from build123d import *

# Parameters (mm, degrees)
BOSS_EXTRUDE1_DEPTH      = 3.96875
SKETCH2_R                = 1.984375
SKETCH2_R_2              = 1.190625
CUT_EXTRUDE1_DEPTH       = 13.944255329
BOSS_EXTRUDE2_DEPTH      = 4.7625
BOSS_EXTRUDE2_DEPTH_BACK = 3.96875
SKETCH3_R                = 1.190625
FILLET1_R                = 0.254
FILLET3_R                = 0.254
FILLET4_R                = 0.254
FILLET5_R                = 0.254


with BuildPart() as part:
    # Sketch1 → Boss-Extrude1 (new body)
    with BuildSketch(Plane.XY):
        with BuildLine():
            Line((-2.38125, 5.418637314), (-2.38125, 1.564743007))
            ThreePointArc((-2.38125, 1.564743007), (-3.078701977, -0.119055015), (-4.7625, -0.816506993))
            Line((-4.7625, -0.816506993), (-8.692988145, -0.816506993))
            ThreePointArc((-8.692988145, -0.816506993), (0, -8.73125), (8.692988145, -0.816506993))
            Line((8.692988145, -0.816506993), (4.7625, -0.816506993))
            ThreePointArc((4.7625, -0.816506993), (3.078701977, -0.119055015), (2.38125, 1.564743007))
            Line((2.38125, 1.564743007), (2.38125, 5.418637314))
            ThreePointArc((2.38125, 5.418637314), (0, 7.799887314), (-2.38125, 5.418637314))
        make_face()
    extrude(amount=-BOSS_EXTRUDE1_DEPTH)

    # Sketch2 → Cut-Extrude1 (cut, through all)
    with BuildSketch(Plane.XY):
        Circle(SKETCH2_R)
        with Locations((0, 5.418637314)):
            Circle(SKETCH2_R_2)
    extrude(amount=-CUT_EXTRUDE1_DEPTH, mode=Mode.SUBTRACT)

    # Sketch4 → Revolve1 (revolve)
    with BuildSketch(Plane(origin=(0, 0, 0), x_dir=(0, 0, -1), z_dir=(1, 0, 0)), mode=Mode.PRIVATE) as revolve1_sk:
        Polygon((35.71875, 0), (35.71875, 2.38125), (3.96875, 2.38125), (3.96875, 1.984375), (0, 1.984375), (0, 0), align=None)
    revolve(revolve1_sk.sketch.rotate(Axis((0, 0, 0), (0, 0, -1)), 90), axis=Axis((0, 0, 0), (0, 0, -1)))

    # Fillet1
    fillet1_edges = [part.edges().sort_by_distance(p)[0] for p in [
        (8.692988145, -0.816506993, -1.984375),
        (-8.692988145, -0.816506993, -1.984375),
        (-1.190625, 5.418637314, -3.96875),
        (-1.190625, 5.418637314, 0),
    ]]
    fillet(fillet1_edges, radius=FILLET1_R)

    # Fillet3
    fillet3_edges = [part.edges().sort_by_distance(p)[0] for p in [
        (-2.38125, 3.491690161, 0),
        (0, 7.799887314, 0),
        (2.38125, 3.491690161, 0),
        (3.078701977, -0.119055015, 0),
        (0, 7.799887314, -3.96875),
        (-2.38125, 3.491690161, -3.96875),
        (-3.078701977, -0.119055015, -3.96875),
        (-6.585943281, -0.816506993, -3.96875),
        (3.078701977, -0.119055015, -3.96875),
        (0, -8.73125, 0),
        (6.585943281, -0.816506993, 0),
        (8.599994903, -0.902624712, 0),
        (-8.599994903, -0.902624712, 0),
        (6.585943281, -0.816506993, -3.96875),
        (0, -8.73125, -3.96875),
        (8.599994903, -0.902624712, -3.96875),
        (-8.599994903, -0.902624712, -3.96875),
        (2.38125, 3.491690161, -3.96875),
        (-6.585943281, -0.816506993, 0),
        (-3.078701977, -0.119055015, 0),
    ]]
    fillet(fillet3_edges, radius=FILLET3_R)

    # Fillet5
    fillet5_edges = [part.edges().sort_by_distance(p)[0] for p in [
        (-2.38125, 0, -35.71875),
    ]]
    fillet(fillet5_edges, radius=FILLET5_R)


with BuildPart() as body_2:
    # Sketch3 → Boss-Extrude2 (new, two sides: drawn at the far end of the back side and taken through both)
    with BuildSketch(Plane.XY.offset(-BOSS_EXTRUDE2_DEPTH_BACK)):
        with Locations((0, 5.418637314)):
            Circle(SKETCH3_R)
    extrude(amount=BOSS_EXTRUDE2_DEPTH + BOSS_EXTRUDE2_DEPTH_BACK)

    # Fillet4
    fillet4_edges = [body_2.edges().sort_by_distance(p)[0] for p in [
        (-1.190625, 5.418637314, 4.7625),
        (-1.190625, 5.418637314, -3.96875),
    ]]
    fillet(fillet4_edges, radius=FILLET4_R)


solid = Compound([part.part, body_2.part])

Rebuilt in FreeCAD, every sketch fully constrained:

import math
import FreeCAD as App
import Part
import Sketcher
Q = App.Units.Quantity


def edges_at(feature, points):
    """Names of the edges that pass closest to the given points."""
    edges = feature.Shape.Edges
    near = lambda p: min(range(len(edges)), key=lambda i: edges[i].distToShape(Part.Vertex(*p))[0])
    return sorted({f"Edge{near(p) + 1}" for p in points})

doc = App.newDocument("Part")
params = doc.addObject("Spreadsheet::Sheet", "Params")
for row, (alias, value) in enumerate([
    ("sketch1_radius", "0.09375 in"),
    ("sketch1_radius2", "0.34375 in"),
    ("pad1_length", "0.15625 in"),
    ("sketch2_diameter", "0.15625 in"),
    ("sketch2_diameter2", "0.09375 in"),
    ("sketch3_height", "1.25 in"),
    ("sketch3_width", "0.09375 in"),
    ("sketch3_width2", "0.015625 in"),
    ("sketch3_height2", "0.15625 in"),
    ("revolution_angle", "360 deg"),
    ("fillet_radius", "0.01 in"),
    ("fillet2_radius", "0.01 in"),
    ("fillet3_radius", "0.01 in"),
    ("sketch4_diameter", "0.09375 in"),
    ("pad2_length", "0.1875 in"),
    ("pad2_length2", "0.15625 in"),
    ("fillet4_radius", "0.01 in"),
], start=1):
    params.set(f"A{row}", alias)
    params.set(f"B{row}", "=" + value)
    params.setAlias(f"B{row}", alias)

body = doc.addObject("PartDesign::Body", "Body")

# Sketch on XY plane
sketch1 = body.newObject("Sketcher::SketchObject", "Sketch")
sketch1.AttachmentSupport = (doc.getObject("XY_Plane"), [""])
sketch1.MapMode = "FlatFace"
sketch1.addGeometry(Part.LineSegment(App.Vector(-2.4, 5.4, 0), App.Vector(-2.4, 1.6, 0)), False)
sketch1.addGeometry(Part.ArcOfCircle(Part.Circle(App.Vector(-4.8, 1.6, 0), App.Vector(0, 0, 1), 2.4), math.radians(-90), math.radians(0)), False)
sketch1.addGeometry(Part.LineSegment(App.Vector(-4.8, -0.8, 0), App.Vector(-8.7, -0.8, 0)), False)
sketch1.addGeometry(Part.ArcOfCircle(Part.Circle(App.Vector(0, 0, 0), App.Vector(0, 0, 1), 8.7), math.radians(-175), math.radians(-5)), False)
sketch1.addGeometry(Part.LineSegment(App.Vector(8.7, -0.8, 0), App.Vector(4.8, -0.8, 0)), False)
sketch1.addGeometry(Part.ArcOfCircle(Part.Circle(App.Vector(4.8, 1.6, 0), App.Vector(0, 0, 1), 2.4), math.radians(-180), math.radians(-90)), False)
sketch1.addGeometry(Part.LineSegment(App.Vector(2.4, 1.6, 0), App.Vector(2.4, 5.4, 0)), False)
sketch1.addGeometry(Part.ArcOfCircle(Part.Circle(App.Vector(0, 5.4, 0), App.Vector(0, 0, 1), 2.4), math.radians(0), math.radians(180)), False)
sketch1.addConstraint(Sketcher.Constraint("Tangent", 0, 2, 1, 2))
sketch1.addConstraint(Sketcher.Constraint("Tangent", 1, 1, 2, 1))
sketch1.addConstraint(Sketcher.Constraint("Coincident", 2, 2, 3, 1))
sketch1.addConstraint(Sketcher.Constraint("Coincident", 3, 2, 4, 1))
sketch1.addConstraint(Sketcher.Constraint("Tangent", 4, 2, 5, 2))
sketch1.addConstraint(Sketcher.Constraint("Tangent", 5, 1, 6, 1))
sketch1.addConstraint(Sketcher.Constraint("Tangent", 6, 2, 7, 1))
sketch1.addConstraint(Sketcher.Constraint("Tangent", 7, 2, 0, 1))
sketch1.addConstraint(Sketcher.Constraint("Vertical", 0))
sketch1.addConstraint(Sketcher.Constraint("Horizontal", 2))
sketch1.addConstraint(Sketcher.Constraint("Horizontal", 4))
sketch1.addConstraint(Sketcher.Constraint("Vertical", 6))
sketch1.addConstraint(Sketcher.Constraint("Coincident", 3, 3, -1, 1))
sketch1.addConstraint(Sketcher.Constraint("Equal", 1, 5))
sketch1.addConstraint(Sketcher.Constraint("Equal", 5, 7))
sketch1.addConstraint(Sketcher.Constraint("Symmetric", 1, 3, 5, 3, -2))
sketch1.addConstraint(Sketcher.Constraint("Radius", 1, Q("0.09375 in")))
sketch1.addConstraint(Sketcher.Constraint("Radius", 3, Q("0.34375 in")))
sketch1.addConstraint(Sketcher.Constraint("DistanceX", 2, 2, 2, 1, Q("3.930488 mm")))
sketch1.addConstraint(Sketcher.Constraint("DistanceY", 0, 2, 0, 1, Q("3.853894 mm")))
sketch1.setExpression("Constraints[16]", "Params.sketch1_radius")
sketch1.setExpression("Constraints[17]", "Params.sketch1_radius2")
pad1 = body.newObject("PartDesign::Pad", "Pad")
pad1.Profile = sketch1
pad1.setExpression("Length", "Params.pad1_length")
pad1.Reversed = True

# Sketch on XY plane
sketch2 = body.newObject("Sketcher::SketchObject", "Sketch001")
sketch2.AttachmentSupport = (doc.getObject("XY_Plane"), [""])
sketch2.MapMode = "FlatFace"
sketch2.addGeometry(Part.Circle(App.Vector(0, 0, 0), App.Vector(0, 0, 1), 2), False)
sketch2.addGeometry(Part.Circle(App.Vector(0, 5.4, 0), App.Vector(0, 0, 1), 1.2), False)
sketch2.addConstraint(Sketcher.Constraint("Coincident", 0, 3, -1, 1))
sketch2.addConstraint(Sketcher.Constraint("PointOnObject", 1, 3, -2))
sketch2.addConstraint(Sketcher.Constraint("Diameter", 0, Q("0.15625 in")))
sketch2.addConstraint(Sketcher.Constraint("Diameter", 1, Q("0.09375 in")))
sketch2.addConstraint(Sketcher.Constraint("DistanceY", -1, 1, 1, 3, Q("5.418637 mm")))
sketch2.setExpression("Constraints[2]", "Params.sketch2_diameter")
sketch2.setExpression("Constraints[3]", "Params.sketch2_diameter2")
pocket1 = body.newObject("PartDesign::Pocket", "Pocket")
pocket1.Profile = sketch2
pocket1.Type = "ThroughAll"

# Sketch on YZ plane
sketch3 = body.newObject("Sketcher::SketchObject", "Sketch002")
sketch3.AttachmentSupport = (doc.getObject("YZ_Plane"), [""])
sketch3.MapMode = "FlatFace"
sketch3.addGeometry(Part.LineSegment(App.Vector(0, -35.72, 0), App.Vector(2.38, -35.72, 0)), False)
sketch3.addGeometry(Part.LineSegment(App.Vector(2.38, -35.72, 0), App.Vector(2.38, -3.97, 0)), False)
sketch3.addGeometry(Part.LineSegment(App.Vector(2.38, -3.97, 0), App.Vector(1.98, -3.97, 0)), False)
sketch3.addGeometry(Part.LineSegment(App.Vector(1.98, -3.97, 0), App.Vector(1.98, 0, 0)), False)
sketch3.addGeometry(Part.LineSegment(App.Vector(1.98, 0, 0), App.Vector(0, 0, 0)), False)
sketch3.addGeometry(Part.LineSegment(App.Vector(0, 0, 0), App.Vector(0, -35.72, 0)), False)
sketch3.addConstraint(Sketcher.Constraint("Coincident", 0, 2, 1, 1))
sketch3.addConstraint(Sketcher.Constraint("Coincident", 1, 2, 2, 1))
sketch3.addConstraint(Sketcher.Constraint("Coincident", 2, 2, 3, 1))
sketch3.addConstraint(Sketcher.Constraint("Coincident", 3, 2, 4, 1))
sketch3.addConstraint(Sketcher.Constraint("Coincident", 4, 2, 5, 1))
sketch3.addConstraint(Sketcher.Constraint("Coincident", 5, 2, 0, 1))
sketch3.addConstraint(Sketcher.Constraint("Horizontal", 0))
sketch3.addConstraint(Sketcher.Constraint("Vertical", 1))
sketch3.addConstraint(Sketcher.Constraint("Horizontal", 2))
sketch3.addConstraint(Sketcher.Constraint("Vertical", 3))
sketch3.addConstraint(Sketcher.Constraint("Horizontal", 4))
sketch3.addConstraint(Sketcher.Constraint("Vertical", 5))
sketch3.addConstraint(Sketcher.Constraint("Coincident", 4, 2, -1, 1))
sketch3.addConstraint(Sketcher.Constraint("DistanceY", 1, 1, 1, 2, Q("1.25 in")))
sketch3.addConstraint(Sketcher.Constraint("DistanceX", 0, 1, 0, 2, Q("0.09375 in")))
sketch3.addConstraint(Sketcher.Constraint("DistanceX", 2, 2, 2, 1, Q("0.015625 in")))
sketch3.addConstraint(Sketcher.Constraint("DistanceY", 3, 1, 3, 2, Q("0.15625 in")))
sketch3.setExpression("Constraints[13]", "Params.sketch3_height")
sketch3.setExpression("Constraints[14]", "Params.sketch3_width")
sketch3.setExpression("Constraints[15]", "Params.sketch3_width2")
sketch3.setExpression("Constraints[16]", "Params.sketch3_height2")
revolution = body.newObject("PartDesign::Revolution", "Revolution")
revolution.Profile = sketch3
revolution.ReferenceAxis = (sketch3, ["V_Axis"])
revolution.setExpression("Angle", "Params.revolution_angle")
doc.recompute()

fillet = body.newObject("PartDesign::Fillet", "Fillet")
fillet.Base = (revolution, edges_at(revolution, [
    (8.693, -0.817, -1.984),
    (-8.693, -0.817, -1.984),
    (-1.191, 5.419, -3.969),
    (-1.191, 5.419, 0),
]))
fillet.setExpression("Radius", "Params.fillet_radius")
doc.recompute()

fillet2 = body.newObject("PartDesign::Fillet", "Fillet001")
fillet2.Base = (fillet, edges_at(fillet, [
    (-2.381, 3.492, 0),
    (0, 7.8, 0),
    (2.381, 3.492, 0),
    (3.079, -0.119, 0),
    (0, 7.8, -3.969),
    (-2.381, 3.492, -3.969),
    (-3.079, -0.119, -3.969),
    (-6.586, -0.817, -3.969),
    (3.079, -0.119, -3.969),
    (0, -8.731, 0),
    (6.586, -0.817, 0),
    (8.6, -0.903, 0),
    (-8.6, -0.903, 0),
    (6.586, -0.817, -3.969),
    (0, -8.731, -3.969),
    (8.6, -0.903, -3.969),
    (-8.6, -0.903, -3.969),
    (2.381, 3.492, -3.969),
    (-6.586, -0.817, 0),
    (-3.079, -0.119, 0),
]))
fillet2.setExpression("Radius", "Params.fillet2_radius")
doc.recompute()

fillet3 = body.newObject("PartDesign::Fillet", "Fillet002")
fillet3.Base = (fillet2, edges_at(fillet2, [(-2.381, 0, -35.719)]))
fillet3.setExpression("Radius", "Params.fillet3_radius")
body2 = doc.addObject("PartDesign::Body", "Body001")

# Sketch on XY plane
sketch4 = body2.newObject("Sketcher::SketchObject", "Sketch003")
sketch4.AttachmentSupport = (doc.getObject("XY_Plane001"), [""])
sketch4.MapMode = "FlatFace"
sketch4.addGeometry(Part.Circle(App.Vector(0, 5.4, 0), App.Vector(0, 0, 1), 1.2), False)
sketch4.addConstraint(Sketcher.Constraint("PointOnObject", 0, 3, -2))
sketch4.addConstraint(Sketcher.Constraint("Diameter", 0, Q("0.09375 in")))
sketch4.addConstraint(Sketcher.Constraint("DistanceY", -1, 1, 0, 3, Q("5.418637 mm")))
sketch4.setExpression("Constraints[1]", "Params.sketch4_diameter")
pad2 = body2.newObject("PartDesign::Pad", "Pad001")
pad2.Profile = sketch4
pad2.Type = "TwoLengths"
pad2.setExpression("Length", "Params.pad2_length")
pad2.setExpression("Length2", "Params.pad2_length2")
doc.recompute()

fillet4 = body2.newObject("PartDesign::Fillet", "Fillet003")
fillet4.Base = (pad2, edges_at(pad2, [(-1.191, 5.419, 4.763), (-1.191, 5.419, -3.969)]))
fillet4.setExpression("Radius", "Params.fillet4_radius")

doc.recompute()
